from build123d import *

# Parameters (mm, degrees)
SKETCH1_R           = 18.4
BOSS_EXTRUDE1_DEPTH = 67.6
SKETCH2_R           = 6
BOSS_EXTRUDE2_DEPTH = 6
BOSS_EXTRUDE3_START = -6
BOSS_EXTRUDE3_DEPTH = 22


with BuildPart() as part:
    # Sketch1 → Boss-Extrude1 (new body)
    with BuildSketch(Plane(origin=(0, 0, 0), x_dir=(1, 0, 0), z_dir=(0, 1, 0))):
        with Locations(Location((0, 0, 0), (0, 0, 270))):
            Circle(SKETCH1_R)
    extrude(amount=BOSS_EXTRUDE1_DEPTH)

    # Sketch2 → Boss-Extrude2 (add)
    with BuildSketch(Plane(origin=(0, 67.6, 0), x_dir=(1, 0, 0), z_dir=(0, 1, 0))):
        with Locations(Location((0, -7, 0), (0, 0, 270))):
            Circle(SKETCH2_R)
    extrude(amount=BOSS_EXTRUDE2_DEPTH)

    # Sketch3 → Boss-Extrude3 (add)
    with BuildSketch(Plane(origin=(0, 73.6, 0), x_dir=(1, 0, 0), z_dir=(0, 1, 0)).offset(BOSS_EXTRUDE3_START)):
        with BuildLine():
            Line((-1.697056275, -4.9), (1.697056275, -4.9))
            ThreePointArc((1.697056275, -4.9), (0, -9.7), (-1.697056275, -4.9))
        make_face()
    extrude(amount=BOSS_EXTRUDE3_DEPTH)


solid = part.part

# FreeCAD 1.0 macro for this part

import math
import FreeCAD as App
import Part
import Sketcher
from FreeCAD import Vector
Q = App.Units.Quantity

doc = App.newDocument("Part")
body = doc.addObject("PartDesign::Body", "Body")

# Sketch on XZ plane
sketch1 = body.newObject("Sketcher::SketchObject", "Sketch")
sketch1.AttachmentSupport = (doc.getObject("XZ_Plane"), [""])
sketch1.MapMode = "FlatFace"
sketch1.addGeometry(Part.Circle(Vector(0, 0, 0), Vector(0, 0, 1), 18), False)
sketch1.addConstraint([
    Sketcher.Constraint("Coincident", 0, 3, -1, 1),
    Sketcher.Constraint("Diameter", 0, Q("36.8 mm")),
])
pad1 = body.newObject("PartDesign::Pad", "Pad")
pad1.Profile = sketch1
pad1.Length = 67.6
pad1.Reversed = True

# Sketch on XZ plane
sketch2 = body.newObject("Sketcher::SketchObject", "Sketch001")
sketch2.AttachmentSupport = (doc.getObject("XZ_Plane"), [""])
sketch2.MapMode = "FlatFace"
sketch2.AttachmentOffset = App.Placement(Vector(0, 0, -67.6), App.Rotation())
sketch2.addGeometry(Part.Circle(Vector(0, 7, 0), Vector(0, 0, 1), 6), False)
sketch2.addConstraint([
    Sketcher.Constraint("PointOnObject", 0, 3, -2),
    Sketcher.Constraint("Diameter", 0, Q("12 mm")),
    Sketcher.Constraint("DistanceY", -1, 1, 0, 3, Q("7 mm")),
])
pad2 = body.newObject("PartDesign::Pad", "Pad001")
pad2.Profile = sketch2
pad2.Length = 6
pad2.Reversed = True

# Sketch on XZ plane
sketch3 = body.newObject("Sketcher::SketchObject", "Sketch002")
sketch3.AttachmentSupport = (doc.getObject("XZ_Plane"), [""])
sketch3.MapMode = "FlatFace"
sketch3.AttachmentOffset = App.Placement(Vector(0, 0, -67.6), App.Rotation())
sketch3.addGeometry([
    Part.LineSegment(Vector(1.7, 4.9, 0), Vector(-1.7, 4.9, 0)),
    Part.ArcOfCircle(Part.Circle(Vector(0, 7, 0), Vector(0, 0, 1), 2.7), math.radians(-51), math.radians(231)),
], False)
sketch3.addConstraint([
    Sketcher.Constraint("Coincident", 0, 1, 1, 1),
    Sketcher.Constraint("Coincident", 1, 2, 0, 2),
    Sketcher.Constraint("Horizontal", 0),
    Sketcher.Constraint("PointOnObject", 1, 3, -2),
    Sketcher.Constraint("Radius", 1, Q("2.7 mm")),
    Sketcher.Constraint("DistanceY", -1, 1, 1, 3, Q("7 mm")),
    Sketcher.Constraint("DistanceY", -1, 1, 0, 1, Q("4.9 mm")),
])
pad3 = body.newObject("PartDesign::Pad", "Pad002")
pad3.Profile = sketch3
pad3.Length = 22
pad3.Reversed = True

doc.recompute()
